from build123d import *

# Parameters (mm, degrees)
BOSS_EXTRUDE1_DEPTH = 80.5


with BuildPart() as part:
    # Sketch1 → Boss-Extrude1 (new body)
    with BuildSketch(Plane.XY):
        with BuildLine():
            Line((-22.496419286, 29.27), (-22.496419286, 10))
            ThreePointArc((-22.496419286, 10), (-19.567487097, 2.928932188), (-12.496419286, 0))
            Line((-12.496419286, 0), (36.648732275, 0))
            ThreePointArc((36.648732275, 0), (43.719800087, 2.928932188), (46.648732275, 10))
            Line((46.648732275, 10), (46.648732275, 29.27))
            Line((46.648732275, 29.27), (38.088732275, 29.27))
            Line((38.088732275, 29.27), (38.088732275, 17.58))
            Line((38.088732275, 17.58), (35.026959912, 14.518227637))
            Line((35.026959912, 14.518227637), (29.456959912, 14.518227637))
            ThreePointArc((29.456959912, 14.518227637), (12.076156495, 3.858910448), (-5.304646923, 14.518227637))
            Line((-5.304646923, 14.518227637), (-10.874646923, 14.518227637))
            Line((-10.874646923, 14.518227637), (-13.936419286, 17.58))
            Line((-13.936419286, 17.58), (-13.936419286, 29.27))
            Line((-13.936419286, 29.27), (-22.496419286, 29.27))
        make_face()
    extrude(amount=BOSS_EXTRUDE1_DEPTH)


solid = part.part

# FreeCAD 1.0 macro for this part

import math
import FreeCAD as App
import Part
import Sketcher
from FreeCAD import Vector

doc = App.newDocument("Part")
body = doc.addObject("PartDesign::Body", "Body")

# Sketch on XY plane
sketch1 = doc.addObject("Sketcher::SketchObject", "Sketch")
body.addObject(sketch1)
sketch1.AttachmentSupport = (doc.XY_Plane, [""])
sketch1.MapMode = "FlatFace"
sketch1.addGeometry([
    Part.LineSegment(Vector(-22.5, 29.3, 0), Vector(-22.5, 10, 0)),  # 0
    Part.ArcOfCircle(Part.Circle(Vector(-12.5, 10, 0), Vector(0, 0, 1), 10), math.radians(-180), math.radians(-90)),  # 1
    Part.LineSegment(Vector(-12.5, 0, 0), Vector(36.6, 0, 0)),  # 2
    Part.ArcOfCircle(Part.Circle(Vector(36.6, 10, 0), Vector(0, 0, 1), 10), math.radians(-90), math.radians(0)),  # 3
    Part.LineSegment(Vector(46.6, 10, 0), Vector(46.6, 29.3, 0)),  # 4
    Part.LineSegment(Vector(46.6, 29.3, 0), Vector(38.1, 29.3, 0)),  # 5
    Part.LineSegment(Vector(38.1, 29.3, 0), Vector(38.1, 17.6, 0)),  # 6
    Part.LineSegment(Vector(38.1, 17.6, 0), Vector(35, 14.5, 0)),  # 7
    Part.LineSegment(Vector(35, 14.5, 0), Vector(29.5, 14.5, 0)),  # 8
    Part.ArcOfCircle(Part.Circle(Vector(12.1, 23.4, 0), Vector(0, 0, 1), 19.5), math.radians(-153), math.radians(-27)),  # 9
    Part.LineSegment(Vector(-5.3, 14.5, 0), Vector(-10.9, 14.5, 0)),  # 10
    Part.LineSegment(Vector(-10.9, 14.5, 0), Vector(-13.9, 17.6, 0)),  # 11
    Part.LineSegment(Vector(-13.9, 17.6, 0), Vector(-13.9, 29.3, 0)),  # 12
    Part.LineSegment(Vector(-13.9, 29.3, 0), Vector(-22.5, 29.3, 0)),  # 13
], False)
sketch1.addConstraint([
    Sketcher.Constraint("Tangent", 0, 2, 1, 1),
    Sketcher.Constraint("Tangent", 1, 2, 2, 1),
    Sketcher.Constraint("Tangent", 2, 2, 3, 1),
    Sketcher.Constraint("Tangent", 3, 2, 4, 1),
    Sketcher.Constraint("Coincident", 4, 2, 5, 1),
    Sketcher.Constraint("Coincident", 5, 2, 6, 1),
    Sketcher.Constraint("Coincident", 6, 2, 7, 1),
    Sketcher.Constraint("Coincident", 7, 2, 8, 1),
    Sketcher.Constraint("Coincident", 8, 2, 9, 2),
    Sketcher.Constraint("Coincident", 9, 1, 10, 1),
    Sketcher.Constraint("Coincident", 10, 2, 11, 1),
    Sketcher.Constraint("Coincident", 11, 2, 12, 1),
    Sketcher.Constraint("Coincident", 12, 2, 13, 1),
    Sketcher.Constraint("Coincident", 13, 2, 0, 1),
    Sketcher.Constraint("Vertical", 0),
    Sketcher.Constraint("Horizontal", 2),
    Sketcher.Constraint("Vertical", 4),
    Sketcher.Constraint("Horizontal", 5),
    Sketcher.Constraint("Vertical", 6),
    Sketcher.Constraint("Horizontal", 8),
    Sketcher.Constraint("Horizontal", 10),
    Sketcher.Constraint("Vertical", 12),
    Sketcher.Constraint("Horizontal", 13),
    Sketcher.Constraint("Equal", 1, 3),
    Sketcher.Constraint("PointOnObject", 1, 2, -1),
    Sketcher.Constraint("Perpendicular", 7, 11),
    Sketcher.Constraint("Horizontal", 8, 2, 9, 1),
    Sketcher.Constraint("Horizontal", 6, 2, 11, 2),
    Sketcher.Constraint("Horizontal", 5, 2, 12, 2),
    Sketcher.Constraint("Equal", 8, 10),
    Sketcher.Constraint("Equal", 5, 13),
    Sketcher.Constraint("Equal", 7, 11),
    Sketcher.Constraint("Radius", 1, 10.0),
    Sketcher.Constraint("Radius", 9, 19.5),
    Sketcher.Constraint("DistanceX", 5, 2, 5, 1, 8.56),
    Sketcher.Constraint("DistanceX", 8, 2, 8, 1, 5.57),
    Sketcher.Constraint("DistanceY", 0, 2, 0, 1, 19.27),
    Sketcher.Constraint("DistanceY", 6, 2, 6, 1, 11.69),
    Sketcher.Constraint("Distance", 7, 4.33),
    Sketcher.Constraint("DistanceX", 2, 1, 2, 2, 49.145152),
    Sketcher.Constraint("DistanceX", 1, 3, -1, 1, 12.496419),
])
pad1 = doc.addObject("PartDesign::Pad", "Pad")
body.addObject(pad1)
pad1.Profile = sketch1
pad1.Length = 80.5

doc.recompute()
